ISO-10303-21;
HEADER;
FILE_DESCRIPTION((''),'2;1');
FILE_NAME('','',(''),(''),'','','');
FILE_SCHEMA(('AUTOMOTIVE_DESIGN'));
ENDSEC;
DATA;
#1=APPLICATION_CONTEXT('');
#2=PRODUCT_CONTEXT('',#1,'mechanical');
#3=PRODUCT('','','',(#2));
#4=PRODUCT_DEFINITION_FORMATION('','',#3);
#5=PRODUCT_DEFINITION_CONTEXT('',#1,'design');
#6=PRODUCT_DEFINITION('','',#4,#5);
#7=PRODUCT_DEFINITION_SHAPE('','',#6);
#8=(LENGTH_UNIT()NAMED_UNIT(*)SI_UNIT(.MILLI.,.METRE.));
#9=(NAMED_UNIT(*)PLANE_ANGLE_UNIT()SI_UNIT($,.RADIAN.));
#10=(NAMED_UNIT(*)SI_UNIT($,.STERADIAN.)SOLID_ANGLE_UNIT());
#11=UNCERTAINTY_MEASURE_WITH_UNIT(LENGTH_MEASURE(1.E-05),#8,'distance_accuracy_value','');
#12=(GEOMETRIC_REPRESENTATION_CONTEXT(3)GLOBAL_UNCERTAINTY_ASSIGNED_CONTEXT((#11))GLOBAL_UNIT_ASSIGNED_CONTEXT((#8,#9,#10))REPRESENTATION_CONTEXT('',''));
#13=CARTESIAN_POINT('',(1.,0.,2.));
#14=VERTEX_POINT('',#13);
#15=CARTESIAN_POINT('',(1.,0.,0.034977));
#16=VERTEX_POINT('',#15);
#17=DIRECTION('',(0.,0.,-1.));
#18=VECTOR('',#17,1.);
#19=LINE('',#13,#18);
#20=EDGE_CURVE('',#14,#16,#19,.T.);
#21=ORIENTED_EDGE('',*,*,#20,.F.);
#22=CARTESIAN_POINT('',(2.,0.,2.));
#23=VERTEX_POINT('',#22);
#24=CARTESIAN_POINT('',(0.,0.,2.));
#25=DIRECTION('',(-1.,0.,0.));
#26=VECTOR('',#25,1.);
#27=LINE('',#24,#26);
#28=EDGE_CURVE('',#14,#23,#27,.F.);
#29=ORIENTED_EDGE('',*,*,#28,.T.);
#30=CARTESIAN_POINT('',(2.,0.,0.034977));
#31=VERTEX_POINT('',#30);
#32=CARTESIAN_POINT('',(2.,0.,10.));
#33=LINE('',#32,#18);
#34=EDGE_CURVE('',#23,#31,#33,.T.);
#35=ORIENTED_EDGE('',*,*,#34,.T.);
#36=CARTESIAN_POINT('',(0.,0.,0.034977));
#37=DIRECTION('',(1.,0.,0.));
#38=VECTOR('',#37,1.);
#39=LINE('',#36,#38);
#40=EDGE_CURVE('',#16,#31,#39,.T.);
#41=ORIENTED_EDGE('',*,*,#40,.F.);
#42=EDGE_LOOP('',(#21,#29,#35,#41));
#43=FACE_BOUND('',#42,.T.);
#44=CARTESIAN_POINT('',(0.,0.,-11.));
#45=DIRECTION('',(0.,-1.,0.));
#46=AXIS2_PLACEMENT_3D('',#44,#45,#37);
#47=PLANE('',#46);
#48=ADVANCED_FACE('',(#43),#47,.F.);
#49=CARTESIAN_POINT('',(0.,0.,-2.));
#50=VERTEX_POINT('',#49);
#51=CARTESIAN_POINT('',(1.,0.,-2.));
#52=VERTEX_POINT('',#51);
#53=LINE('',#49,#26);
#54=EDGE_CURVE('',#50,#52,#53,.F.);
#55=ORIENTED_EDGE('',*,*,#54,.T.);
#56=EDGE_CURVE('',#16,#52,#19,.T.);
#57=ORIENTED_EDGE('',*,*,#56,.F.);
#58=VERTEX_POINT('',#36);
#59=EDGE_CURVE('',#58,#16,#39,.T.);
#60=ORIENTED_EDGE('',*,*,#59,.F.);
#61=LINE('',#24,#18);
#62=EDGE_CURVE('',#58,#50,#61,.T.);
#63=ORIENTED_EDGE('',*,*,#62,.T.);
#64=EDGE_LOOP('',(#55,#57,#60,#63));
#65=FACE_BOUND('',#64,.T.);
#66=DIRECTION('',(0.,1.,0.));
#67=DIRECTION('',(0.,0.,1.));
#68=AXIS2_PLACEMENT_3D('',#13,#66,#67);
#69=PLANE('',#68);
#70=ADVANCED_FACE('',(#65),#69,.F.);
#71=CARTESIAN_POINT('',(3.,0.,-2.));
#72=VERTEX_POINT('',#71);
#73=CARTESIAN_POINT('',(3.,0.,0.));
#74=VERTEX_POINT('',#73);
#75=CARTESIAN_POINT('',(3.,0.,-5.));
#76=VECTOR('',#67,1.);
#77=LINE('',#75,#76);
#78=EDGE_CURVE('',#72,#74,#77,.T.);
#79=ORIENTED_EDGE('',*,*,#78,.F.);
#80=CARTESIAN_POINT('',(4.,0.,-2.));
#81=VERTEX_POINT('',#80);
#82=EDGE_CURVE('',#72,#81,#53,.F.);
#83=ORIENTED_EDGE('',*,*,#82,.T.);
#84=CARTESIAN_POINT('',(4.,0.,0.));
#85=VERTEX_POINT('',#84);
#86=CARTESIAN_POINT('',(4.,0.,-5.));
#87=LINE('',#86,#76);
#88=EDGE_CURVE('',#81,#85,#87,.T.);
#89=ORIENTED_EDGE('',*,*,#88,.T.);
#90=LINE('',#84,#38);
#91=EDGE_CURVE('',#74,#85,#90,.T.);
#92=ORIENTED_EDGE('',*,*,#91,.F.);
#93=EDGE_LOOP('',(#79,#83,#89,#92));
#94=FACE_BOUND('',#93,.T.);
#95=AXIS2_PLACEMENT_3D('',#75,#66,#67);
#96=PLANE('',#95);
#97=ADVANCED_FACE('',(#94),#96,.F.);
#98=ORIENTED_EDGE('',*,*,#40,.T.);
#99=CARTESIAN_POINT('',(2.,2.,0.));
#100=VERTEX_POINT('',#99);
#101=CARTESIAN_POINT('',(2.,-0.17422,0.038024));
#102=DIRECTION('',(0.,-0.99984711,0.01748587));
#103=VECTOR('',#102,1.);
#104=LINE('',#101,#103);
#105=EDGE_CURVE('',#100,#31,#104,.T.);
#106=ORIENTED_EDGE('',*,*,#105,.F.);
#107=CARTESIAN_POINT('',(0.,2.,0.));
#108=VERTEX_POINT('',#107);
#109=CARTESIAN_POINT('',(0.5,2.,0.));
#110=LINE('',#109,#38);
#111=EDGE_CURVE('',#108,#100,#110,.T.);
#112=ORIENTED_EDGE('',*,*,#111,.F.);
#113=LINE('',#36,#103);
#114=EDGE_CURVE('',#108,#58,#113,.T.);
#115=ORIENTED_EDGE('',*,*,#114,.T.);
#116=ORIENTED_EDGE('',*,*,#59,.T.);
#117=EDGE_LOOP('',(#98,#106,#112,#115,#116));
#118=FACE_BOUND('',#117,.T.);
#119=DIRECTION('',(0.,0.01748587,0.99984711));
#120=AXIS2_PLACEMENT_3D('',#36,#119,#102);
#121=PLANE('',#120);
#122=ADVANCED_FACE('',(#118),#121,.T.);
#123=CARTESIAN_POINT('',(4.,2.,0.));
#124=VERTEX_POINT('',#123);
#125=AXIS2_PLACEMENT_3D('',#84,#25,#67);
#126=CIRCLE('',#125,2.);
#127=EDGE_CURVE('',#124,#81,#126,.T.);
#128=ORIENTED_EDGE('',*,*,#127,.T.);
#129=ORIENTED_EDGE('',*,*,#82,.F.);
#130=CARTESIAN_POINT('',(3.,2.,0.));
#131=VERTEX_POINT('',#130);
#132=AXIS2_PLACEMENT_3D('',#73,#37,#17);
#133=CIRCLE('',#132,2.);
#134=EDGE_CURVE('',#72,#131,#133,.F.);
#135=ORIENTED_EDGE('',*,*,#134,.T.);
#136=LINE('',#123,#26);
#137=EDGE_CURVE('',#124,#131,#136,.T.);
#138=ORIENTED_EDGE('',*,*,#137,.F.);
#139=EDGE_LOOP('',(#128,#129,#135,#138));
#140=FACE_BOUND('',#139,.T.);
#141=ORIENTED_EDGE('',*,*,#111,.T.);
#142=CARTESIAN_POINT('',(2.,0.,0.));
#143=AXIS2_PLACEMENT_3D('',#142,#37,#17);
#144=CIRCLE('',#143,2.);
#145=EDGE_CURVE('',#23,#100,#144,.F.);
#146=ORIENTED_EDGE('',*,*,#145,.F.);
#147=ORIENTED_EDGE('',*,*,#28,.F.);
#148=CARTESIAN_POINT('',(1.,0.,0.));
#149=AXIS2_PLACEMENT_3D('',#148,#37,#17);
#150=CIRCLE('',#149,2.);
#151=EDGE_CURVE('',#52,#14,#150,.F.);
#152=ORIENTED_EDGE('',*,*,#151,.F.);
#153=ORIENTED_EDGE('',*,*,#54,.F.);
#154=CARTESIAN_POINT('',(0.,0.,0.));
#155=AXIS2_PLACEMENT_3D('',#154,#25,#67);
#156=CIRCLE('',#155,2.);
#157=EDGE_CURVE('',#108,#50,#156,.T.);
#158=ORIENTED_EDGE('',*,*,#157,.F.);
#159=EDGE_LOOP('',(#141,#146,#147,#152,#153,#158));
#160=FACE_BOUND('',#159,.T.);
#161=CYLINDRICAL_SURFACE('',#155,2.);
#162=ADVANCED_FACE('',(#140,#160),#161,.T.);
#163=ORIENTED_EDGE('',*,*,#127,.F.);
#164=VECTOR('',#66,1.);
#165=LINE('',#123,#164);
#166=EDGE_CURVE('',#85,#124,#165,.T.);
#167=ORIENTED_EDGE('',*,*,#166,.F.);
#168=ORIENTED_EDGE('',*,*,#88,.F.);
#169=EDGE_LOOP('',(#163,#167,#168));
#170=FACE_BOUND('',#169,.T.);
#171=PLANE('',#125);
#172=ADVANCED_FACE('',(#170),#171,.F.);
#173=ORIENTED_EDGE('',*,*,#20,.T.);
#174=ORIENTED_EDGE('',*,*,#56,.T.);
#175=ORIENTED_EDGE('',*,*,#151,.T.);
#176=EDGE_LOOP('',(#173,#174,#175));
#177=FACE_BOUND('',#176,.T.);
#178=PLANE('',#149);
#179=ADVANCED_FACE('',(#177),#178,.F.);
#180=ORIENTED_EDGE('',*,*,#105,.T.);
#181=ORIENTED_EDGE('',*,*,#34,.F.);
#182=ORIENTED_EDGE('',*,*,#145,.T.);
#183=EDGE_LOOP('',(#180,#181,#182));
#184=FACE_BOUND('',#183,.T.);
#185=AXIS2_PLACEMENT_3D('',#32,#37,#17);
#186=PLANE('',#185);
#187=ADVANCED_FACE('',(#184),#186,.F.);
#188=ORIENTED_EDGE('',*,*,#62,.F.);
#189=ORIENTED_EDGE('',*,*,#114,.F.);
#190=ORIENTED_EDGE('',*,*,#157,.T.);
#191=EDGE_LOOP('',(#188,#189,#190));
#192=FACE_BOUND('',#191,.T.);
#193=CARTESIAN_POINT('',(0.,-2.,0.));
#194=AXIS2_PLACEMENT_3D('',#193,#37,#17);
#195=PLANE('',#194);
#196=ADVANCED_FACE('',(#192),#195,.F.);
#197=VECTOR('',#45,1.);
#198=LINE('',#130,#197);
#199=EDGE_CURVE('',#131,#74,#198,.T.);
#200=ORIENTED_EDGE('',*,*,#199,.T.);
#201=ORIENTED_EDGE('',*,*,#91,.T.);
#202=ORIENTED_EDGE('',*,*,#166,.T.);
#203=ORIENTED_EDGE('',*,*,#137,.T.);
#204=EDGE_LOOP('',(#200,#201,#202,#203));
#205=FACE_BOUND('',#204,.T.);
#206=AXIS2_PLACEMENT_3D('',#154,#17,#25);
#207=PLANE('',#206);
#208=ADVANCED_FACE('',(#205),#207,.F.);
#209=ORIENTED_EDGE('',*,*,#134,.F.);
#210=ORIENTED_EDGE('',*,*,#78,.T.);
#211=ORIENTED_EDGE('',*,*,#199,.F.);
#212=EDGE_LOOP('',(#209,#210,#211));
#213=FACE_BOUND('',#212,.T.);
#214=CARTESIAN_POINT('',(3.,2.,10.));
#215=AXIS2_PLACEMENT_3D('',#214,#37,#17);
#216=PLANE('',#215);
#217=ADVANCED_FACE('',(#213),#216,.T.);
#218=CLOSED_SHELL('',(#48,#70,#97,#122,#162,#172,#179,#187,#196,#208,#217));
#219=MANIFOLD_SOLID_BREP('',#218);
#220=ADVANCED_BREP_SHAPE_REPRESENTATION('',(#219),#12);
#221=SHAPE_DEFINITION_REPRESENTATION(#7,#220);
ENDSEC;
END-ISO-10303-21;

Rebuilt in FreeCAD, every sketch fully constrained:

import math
import FreeCAD as App
import Part
import Sketcher
from FreeCAD import Vector

doc = App.newDocument("Part")
params = doc.addObject("Spreadsheet::Sheet", "Params")
for row, (alias, value) in enumerate([
    ("sketch1_width", "4 mm"),
    ("sketch1_height", "2 mm"),
    ("revolution_angle", "360 deg"),
    ("sketch2_width", "1 mm"),
    ("sketch2_height", "2 mm"),
    ("pocket1_length", "11 mm"),
    ("sketch3_height", "2 mm"),
    ("sketch3_width", "0.5 mm"),
    ("pocket2_length", "10 mm"),
    ("sketch4_height", "2 mm"),
    ("sketch4_width", "1.5 mm"),
    ("pocket3_length", "10 mm"),
    ("sketch5_radius", "2 mm"),
    ("pad1_length", "4 mm"),
    ("pocket4_length", "1 mm"),
    ("sketch7_width", "1 mm"),
    ("sketch7_height", "2 mm"),
    ("pocket5_length", "10 mm"),
    ("sketch8_width", "1 mm"),
    ("sketch8_height", "2 mm"),
    ("pocket6_length", "10 mm"),
], start=1):
    params.set(f"A{row}", alias)
    params.set(f"B{row}", "=" + value)
    params.setAlias(f"B{row}", alias)

body = doc.addObject("PartDesign::Body", "Body")

# Sketch on XY plane
sketch1 = doc.addObject("Sketcher::SketchObject", "Sketch")
body.addObject(sketch1)
sketch1.AttachmentSupport = (doc.XY_Plane, [""])
sketch1.MapMode = "FlatFace"
sketch1.addGeometry([
    Part.LineSegment(Vector(0, 2, 0), Vector(0, 0, 0)),
    Part.LineSegment(Vector(0, 0, 0), Vector(4, 0, 0)),
    Part.LineSegment(Vector(4, 0, 0), Vector(4, 2, 0)),
    Part.LineSegment(Vector(4, 2, 0), Vector(0, 2, 0)),
], False)
sketch1.addConstraint([
    Sketcher.Constraint("Coincident", 0, 2, 1, 1),
    Sketcher.Constraint("Coincident", 1, 2, 2, 1),
    Sketcher.Constraint("Coincident", 2, 2, 3, 1),
    Sketcher.Constraint("Coincident", 3, 2, 0, 1),
    Sketcher.Constraint("Vertical", 0),
    Sketcher.Constraint("Horizontal", 1),
    Sketcher.Constraint("Vertical", 2),
    Sketcher.Constraint("Horizontal", 3),
    Sketcher.Constraint("Coincident", 0, 2, -1, 1),
    Sketcher.Constraint("DistanceX", 1, 1, 1, 2, 4.0),
    Sketcher.Constraint("DistanceY", 0, 2, 0, 1, 2.0),
])
sketch1.setExpression("Constraints[9]", "Params.sketch1_width")
sketch1.setExpression("Constraints[10]", "Params.sketch1_height")
revolution = doc.addObject("PartDesign::Revolution", "Revolution")
body.addObject(revolution)
revolution.Profile = sketch1
revolution.ReferenceAxis = (sketch1, ["H_Axis"])
revolution.setExpression("Angle", "Params.revolution_angle")

# Sketch on XY plane
sketch2 = doc.addObject("Sketcher::SketchObject", "Sketch001")
body.addObject(sketch2)
sketch2.AttachmentSupport = (doc.XY_Plane, [""])
sketch2.MapMode = "FlatFace"
sketch2.addGeometry([
    Part.LineSegment(Vector(3, 2, 0), Vector(3, 0, 0)),  # 0
    Part.LineSegment(Vector(3, 0, 0), Vector(4, 0, 0)),  # 1
    Part.LineSegment(Vector(4, 0, 0), Vector(4, 2, 0)),  # 2
    Part.LineSegment(Vector(4, 2, 0), Vector(3, 2, 0)),  # 3
    Part.LineSegment(Vector(0, 2, 0), Vector(0, 0, 0)),  # 4
    Part.LineSegment(Vector(0, 0, 0), Vector(1, 0, 0)),  # 5
    Part.LineSegment(Vector(1, 0, 0), Vector(1, 2, 0)),  # 6
    Part.LineSegment(Vector(1, 2, 0), Vector(0, 2, 0)),  # 7
], False)
sketch2.addConstraint([
    Sketcher.Constraint("Coincident", 0, 2, 1, 1),
    Sketcher.Constraint("Coincident", 1, 2, 2, 1),
    Sketcher.Constraint("Coincident", 2, 2, 3, 1),
    Sketcher.Constraint("Coincident", 3, 2, 0, 1),
    Sketcher.Constraint("Coincident", 4, 2, 5, 1),
    Sketcher.Constraint("Coincident", 5, 2, 6, 1),
    Sketcher.Constraint("Coincident", 6, 2, 7, 1),
    Sketcher.Constraint("Coincident", 7, 2, 4, 1),
    Sketcher.Constraint("Vertical", 0),
    Sketcher.Constraint("Horizontal", 1),
    Sketcher.Constraint("Vertical", 2),
    Sketcher.Constraint("Horizontal", 3),
    Sketcher.Constraint("Vertical", 4),
    Sketcher.Constraint("Horizontal", 5),
    Sketcher.Constraint("Vertical", 6),
    Sketcher.Constraint("Horizontal", 7),
    Sketcher.Constraint("Coincident", 4, 2, -1, 1),
    Sketcher.Constraint("PointOnObject", 0, 2, -1),
    Sketcher.Constraint("Horizontal", 3, 2, 6, 2),
    Sketcher.Constraint("Equal", 3, 5),
    Sketcher.Constraint("DistanceX", 1, 1, 1, 2, 1.0),
    Sketcher.Constraint("DistanceY", 0, 2, 0, 1, 2.0),
    Sketcher.Constraint("DistanceX", -1, 1, 0, 2, 3.0),
])
sketch2.setExpression("Constraints[20]", "Params.sketch2_width")
sketch2.setExpression("Constraints[21]", "Params.sketch2_height")
pocket1 = doc.addObject("PartDesign::Pocket", "Pocket")
body.addObject(pocket1)
pocket1.Profile = sketch2
pocket1.setExpression("Length", "Params.pocket1_length")

# Sketch on XY plane
sketch3 = doc.addObject("Sketcher::SketchObject", "Sketch002")
body.addObject(sketch3)
sketch3.AttachmentSupport = (doc.XY_Plane, [""])
sketch3.MapMode = "FlatFace"
sketch3.addGeometry([
    Part.LineSegment(Vector(0.5, 2, 0), Vector(0.5, 0, 0)),
    Part.LineSegment(Vector(0.5, 0, 0), Vector(0, 0, 0)),
    Part.LineSegment(Vector(0, 0, 0), Vector(0, 2, 0)),
    Part.LineSegment(Vector(0, 2, 0), Vector(0.5, 2, 0)),
], False)
sketch3.addConstraint([
    Sketcher.Constraint("Coincident", 0, 2, 1, 1),
    Sketcher.Constraint("Coincident", 1, 2, 2, 1),
    Sketcher.Constraint("Coincident", 2, 2, 3, 1),
    Sketcher.Constraint("Coincident", 3, 2, 0, 1),
    Sketcher.Constraint("Vertical", 0),
    Sketcher.Constraint("Horizontal", 1),
    Sketcher.Constraint("Vertical", 2),
    Sketcher.Constraint("Horizontal", 3),
    Sketcher.Constraint("Coincident", 1, 2, -1, 1),
    Sketcher.Constraint("DistanceY", 0, 2, 0, 1, 2.0),
    Sketcher.Constraint("DistanceX", 1, 2, 1, 1, 0.5),
])
sketch3.setExpression("Constraints[9]", "Params.sketch3_height")
sketch3.setExpression("Constraints[10]", "Params.sketch3_width")
pocket2 = doc.addObject("PartDesign::Pocket", "Pocket001")
body.addObject(pocket2)
pocket2.Profile = sketch3
pocket2.setExpression("Length", "Params.pocket2_length")
pocket2.Reversed = True

# Sketch on XY plane
sketch4 = doc.addObject("Sketcher::SketchObject", "Sketch003")
body.addObject(sketch4)
sketch4.AttachmentSupport = (doc.XY_Plane, [""])
sketch4.MapMode = "FlatFace"
sketch4.addGeometry([
    Part.LineSegment(Vector(2, 2, 0), Vector(2, 0, 0)),
    Part.LineSegment(Vector(2, 0, 0), Vector(0.5, 0, 0)),
    Part.LineSegment(Vector(0.5, 0, 0), Vector(0.5, 2, 0)),
    Part.LineSegment(Vector(0.5, 2, 0), Vector(2, 2, 0)),
], False)
sketch4.addConstraint([
    Sketcher.Constraint("Coincident", 0, 2, 1, 1),
    Sketcher.Constraint("Coincident", 1, 2, 2, 1),
    Sketcher.Constraint("Coincident", 2, 2, 3, 1),
    Sketcher.Constraint("Coincident", 3, 2, 0, 1),
    Sketcher.Constraint("Vertical", 0),
    Sketcher.Constraint("Horizontal", 1),
    Sketcher.Constraint("Vertical", 2),
    Sketcher.Constraint("Horizontal", 3),
    Sketcher.Constraint("PointOnObject", 0, 2, -1),
    Sketcher.Constraint("DistanceY", 0, 2, 0, 1, 2.0),
    Sketcher.Constraint("DistanceX", 1, 2, 1, 1, 1.5),
    Sketcher.Constraint("DistanceX", -1, 1, 0, 2, 2.0),
])
sketch4.setExpression("Constraints[9]", "Params.sketch4_height")
sketch4.setExpression("Constraints[10]", "Params.sketch4_width")
pocket3 = doc.addObject("PartDesign::Pocket", "Pocket002")
body.addObject(pocket3)
pocket3.Profile = sketch4
pocket3.setExpression("Length", "Params.pocket3_length")
pocket3.Reversed = True

# Sketch on YZ plane
sketch5 = doc.addObject("Sketcher::SketchObject", "Sketch004")
body.addObject(sketch5)
sketch5.AttachmentSupport = (doc.YZ_Plane, [""])
sketch5.MapMode = "FlatFace"
sketch5.AttachmentOffset = App.Placement(Vector(0, 0, 4), App.Rotation())
sketch5.addGeometry([
    Part.LineSegment(Vector(0, 0, 0), Vector(0, -2, 0)),
    Part.ArcOfCircle(Part.Circle(Vector(0, 0, 0), Vector(0, 0, 1), 2), math.radians(-90), math.radians(0)),
    Part.LineSegment(Vector(2, 0, 0), Vector(0, 0, 0)),
], False)
sketch5.addConstraint([
    Sketcher.Constraint("Coincident", 0, 2, 1, 1),
    Sketcher.Constraint("Coincident", 1, 2, 2, 1),
    Sketcher.Constraint("Coincident", 2, 2, 0, 1),
    Sketcher.Constraint("Vertical", 0),
    Sketcher.Constraint("Coincident", 1, 3, -1, 1),
    Sketcher.Constraint("PointOnObject", 0, 2, -2),
    Sketcher.Constraint("PointOnObject", 1, 2, -1),
    Sketcher.Constraint("Radius", 1, 2.0),
    Sketcher.Constraint("DistanceY", 0, 2, 0, 1, 2.034977),
])
sketch5.setExpression("Constraints[7]", "Params.sketch5_radius")
pad1 = doc.addObject("PartDesign::Pad", "Pad")
body.addObject(pad1)
pad1.Profile = sketch5
pad1.setExpression("Length", "Params.pad1_length")
pad1.Reversed = True

# Sketch on YZ plane
sketch6 = doc.addObject("Sketcher::SketchObject", "Sketch005")
body.addObject(sketch6)
sketch6.AttachmentSupport = (doc.YZ_Plane, [""])
sketch6.MapMode = "FlatFace"
sketch6.addGeometry([
    Part.LineSegment(Vector(0, -2.4, 0), Vector(-3.2, -2.4, 0)),
    Part.LineSegment(Vector(-3.2, -2.4, 0), Vector(-3.2, 2, 0)),
    Part.LineSegment(Vector(-3.2, 2, 0), Vector(0, 2, 0)),
    Part.LineSegment(Vector(0, 2, 0), Vector(0, -2.4, 0)),
], False)
sketch6.addConstraint([
    Sketcher.Constraint("Coincident", 0, 2, 1, 1),
    Sketcher.Constraint("Coincident", 1, 2, 2, 1),
    Sketcher.Constraint("Coincident", 2, 2, 3, 1),
    Sketcher.Constraint("Coincident", 3, 2, 0, 1),
    Sketcher.Constraint("Horizontal", 0),
    Sketcher.Constraint("Vertical", 1),
    Sketcher.Constraint("Horizontal", 2),
    Sketcher.Constraint("Vertical", 3),
    Sketcher.Constraint("PointOnObject", 2, 2, -2),
    Sketcher.Constraint("DistanceY", -1, 1, 1, 2, 2.0),
    Sketcher.Constraint("DistanceX", 0, 2, 0, 1, 3.198189),
    Sketcher.Constraint("DistanceY", 1, 1, 1, 2, 4.449871),
])
pocket4 = doc.addObject("PartDesign::Pocket", "Pocket003")
body.addObject(pocket4)
pocket4.Profile = sketch6
pocket4.setExpression("Length", "Params.pocket4_length")
pocket4.Reversed = True

# Sketch on XY plane
sketch7 = doc.addObject("Sketcher::SketchObject", "Sketch006")
body.addObject(sketch7)
sketch7.AttachmentSupport = (doc.XY_Plane, [""])
sketch7.MapMode = "FlatFace"
sketch7.addGeometry([
    Part.LineSegment(Vector(3, 2, 0), Vector(3, 0, 0)),
    Part.LineSegment(Vector(3, 0, 0), Vector(4, 0, 0)),
    Part.LineSegment(Vector(4, 0, 0), Vector(4, 2, 0)),
    Part.LineSegment(Vector(4, 2, 0), Vector(3, 2, 0)),
], False)
sketch7.addConstraint([
    Sketcher.Constraint("Coincident", 0, 2, 1, 1),
    Sketcher.Constraint("Coincident", 1, 2, 2, 1),
    Sketcher.Constraint("Coincident", 2, 2, 3, 1),
    Sketcher.Constraint("Coincident", 3, 2, 0, 1),
    Sketcher.Constraint("Vertical", 0),
    Sketcher.Constraint("Horizontal", 1),
    Sketcher.Constraint("Vertical", 2),
    Sketcher.Constraint("Horizontal", 3),
    Sketcher.Constraint("PointOnObject", 0, 2, -1),
    Sketcher.Constraint("DistanceX", 1, 1, 1, 2, 1.0),
    Sketcher.Constraint("DistanceY", 0, 2, 0, 1, 2.0),
    Sketcher.Constraint("DistanceX", -1, 1, 0, 2, 3.0),
])
sketch7.setExpression("Constraints[9]", "Params.sketch7_width")
sketch7.setExpression("Constraints[10]", "Params.sketch7_height")
pocket5 = doc.addObject("PartDesign::Pocket", "Pocket004")
body.addObject(pocket5)
pocket5.Profile = sketch7
pocket5.setExpression("Length", "Params.pocket5_length")
pocket5.Reversed = True

# Sketch on XY plane
sketch8 = doc.addObject("Sketcher::SketchObject", "Sketch007")
body.addObject(sketch8)
sketch8.AttachmentSupport = (doc.XY_Plane, [""])
sketch8.MapMode = "FlatFace"
sketch8.addGeometry([
    Part.LineSegment(Vector(3, 0, 0), Vector(3, -2, 0)),
    Part.LineSegment(Vector(3, -2, 0), Vector(4, -2, 0)),
    Part.LineSegment(Vector(4, -2, 0), Vector(4, 0, 0)),
    Part.LineSegment(Vector(4, 0, 0), Vector(3, 0, 0)),
], False)
sketch8.addConstraint([
    Sketcher.Constraint("Coincident", 0, 2, 1, 1),
    Sketcher.Constraint("Coincident", 1, 2, 2, 1),
    Sketcher.Constraint("Coincident", 2, 2, 3, 1),
    Sketcher.Constraint("Coincident", 3, 2, 0, 1),
    Sketcher.Constraint("Vertical", 0),
    Sketcher.Constraint("Horizontal", 1),
    Sketcher.Constraint("Vertical", 2),
    Sketcher.Constraint("Horizontal", 3),
    Sketcher.Constraint("PointOnObject", 2, 2, -1),
    Sketcher.Constraint("DistanceX", 1, 1, 1, 2, 1.0),
    Sketcher.Constraint("DistanceY", 0, 2, 0, 1, 2.0),
    Sketcher.Constraint("DistanceX", -1, 1, 0, 2, 3.0),
])
sketch8.setExpression("Constraints[9]", "Params.sketch8_width")
sketch8.setExpression("Constraints[10]", "Params.sketch8_height")
pocket6 = doc.addObject("PartDesign::Pocket", "Pocket005")
body.addObject(pocket6)
pocket6.Profile = sketch8
pocket6.setExpression("Length", "Params.pocket6_length")
pocket6.Midplane = True

doc.recompute()
